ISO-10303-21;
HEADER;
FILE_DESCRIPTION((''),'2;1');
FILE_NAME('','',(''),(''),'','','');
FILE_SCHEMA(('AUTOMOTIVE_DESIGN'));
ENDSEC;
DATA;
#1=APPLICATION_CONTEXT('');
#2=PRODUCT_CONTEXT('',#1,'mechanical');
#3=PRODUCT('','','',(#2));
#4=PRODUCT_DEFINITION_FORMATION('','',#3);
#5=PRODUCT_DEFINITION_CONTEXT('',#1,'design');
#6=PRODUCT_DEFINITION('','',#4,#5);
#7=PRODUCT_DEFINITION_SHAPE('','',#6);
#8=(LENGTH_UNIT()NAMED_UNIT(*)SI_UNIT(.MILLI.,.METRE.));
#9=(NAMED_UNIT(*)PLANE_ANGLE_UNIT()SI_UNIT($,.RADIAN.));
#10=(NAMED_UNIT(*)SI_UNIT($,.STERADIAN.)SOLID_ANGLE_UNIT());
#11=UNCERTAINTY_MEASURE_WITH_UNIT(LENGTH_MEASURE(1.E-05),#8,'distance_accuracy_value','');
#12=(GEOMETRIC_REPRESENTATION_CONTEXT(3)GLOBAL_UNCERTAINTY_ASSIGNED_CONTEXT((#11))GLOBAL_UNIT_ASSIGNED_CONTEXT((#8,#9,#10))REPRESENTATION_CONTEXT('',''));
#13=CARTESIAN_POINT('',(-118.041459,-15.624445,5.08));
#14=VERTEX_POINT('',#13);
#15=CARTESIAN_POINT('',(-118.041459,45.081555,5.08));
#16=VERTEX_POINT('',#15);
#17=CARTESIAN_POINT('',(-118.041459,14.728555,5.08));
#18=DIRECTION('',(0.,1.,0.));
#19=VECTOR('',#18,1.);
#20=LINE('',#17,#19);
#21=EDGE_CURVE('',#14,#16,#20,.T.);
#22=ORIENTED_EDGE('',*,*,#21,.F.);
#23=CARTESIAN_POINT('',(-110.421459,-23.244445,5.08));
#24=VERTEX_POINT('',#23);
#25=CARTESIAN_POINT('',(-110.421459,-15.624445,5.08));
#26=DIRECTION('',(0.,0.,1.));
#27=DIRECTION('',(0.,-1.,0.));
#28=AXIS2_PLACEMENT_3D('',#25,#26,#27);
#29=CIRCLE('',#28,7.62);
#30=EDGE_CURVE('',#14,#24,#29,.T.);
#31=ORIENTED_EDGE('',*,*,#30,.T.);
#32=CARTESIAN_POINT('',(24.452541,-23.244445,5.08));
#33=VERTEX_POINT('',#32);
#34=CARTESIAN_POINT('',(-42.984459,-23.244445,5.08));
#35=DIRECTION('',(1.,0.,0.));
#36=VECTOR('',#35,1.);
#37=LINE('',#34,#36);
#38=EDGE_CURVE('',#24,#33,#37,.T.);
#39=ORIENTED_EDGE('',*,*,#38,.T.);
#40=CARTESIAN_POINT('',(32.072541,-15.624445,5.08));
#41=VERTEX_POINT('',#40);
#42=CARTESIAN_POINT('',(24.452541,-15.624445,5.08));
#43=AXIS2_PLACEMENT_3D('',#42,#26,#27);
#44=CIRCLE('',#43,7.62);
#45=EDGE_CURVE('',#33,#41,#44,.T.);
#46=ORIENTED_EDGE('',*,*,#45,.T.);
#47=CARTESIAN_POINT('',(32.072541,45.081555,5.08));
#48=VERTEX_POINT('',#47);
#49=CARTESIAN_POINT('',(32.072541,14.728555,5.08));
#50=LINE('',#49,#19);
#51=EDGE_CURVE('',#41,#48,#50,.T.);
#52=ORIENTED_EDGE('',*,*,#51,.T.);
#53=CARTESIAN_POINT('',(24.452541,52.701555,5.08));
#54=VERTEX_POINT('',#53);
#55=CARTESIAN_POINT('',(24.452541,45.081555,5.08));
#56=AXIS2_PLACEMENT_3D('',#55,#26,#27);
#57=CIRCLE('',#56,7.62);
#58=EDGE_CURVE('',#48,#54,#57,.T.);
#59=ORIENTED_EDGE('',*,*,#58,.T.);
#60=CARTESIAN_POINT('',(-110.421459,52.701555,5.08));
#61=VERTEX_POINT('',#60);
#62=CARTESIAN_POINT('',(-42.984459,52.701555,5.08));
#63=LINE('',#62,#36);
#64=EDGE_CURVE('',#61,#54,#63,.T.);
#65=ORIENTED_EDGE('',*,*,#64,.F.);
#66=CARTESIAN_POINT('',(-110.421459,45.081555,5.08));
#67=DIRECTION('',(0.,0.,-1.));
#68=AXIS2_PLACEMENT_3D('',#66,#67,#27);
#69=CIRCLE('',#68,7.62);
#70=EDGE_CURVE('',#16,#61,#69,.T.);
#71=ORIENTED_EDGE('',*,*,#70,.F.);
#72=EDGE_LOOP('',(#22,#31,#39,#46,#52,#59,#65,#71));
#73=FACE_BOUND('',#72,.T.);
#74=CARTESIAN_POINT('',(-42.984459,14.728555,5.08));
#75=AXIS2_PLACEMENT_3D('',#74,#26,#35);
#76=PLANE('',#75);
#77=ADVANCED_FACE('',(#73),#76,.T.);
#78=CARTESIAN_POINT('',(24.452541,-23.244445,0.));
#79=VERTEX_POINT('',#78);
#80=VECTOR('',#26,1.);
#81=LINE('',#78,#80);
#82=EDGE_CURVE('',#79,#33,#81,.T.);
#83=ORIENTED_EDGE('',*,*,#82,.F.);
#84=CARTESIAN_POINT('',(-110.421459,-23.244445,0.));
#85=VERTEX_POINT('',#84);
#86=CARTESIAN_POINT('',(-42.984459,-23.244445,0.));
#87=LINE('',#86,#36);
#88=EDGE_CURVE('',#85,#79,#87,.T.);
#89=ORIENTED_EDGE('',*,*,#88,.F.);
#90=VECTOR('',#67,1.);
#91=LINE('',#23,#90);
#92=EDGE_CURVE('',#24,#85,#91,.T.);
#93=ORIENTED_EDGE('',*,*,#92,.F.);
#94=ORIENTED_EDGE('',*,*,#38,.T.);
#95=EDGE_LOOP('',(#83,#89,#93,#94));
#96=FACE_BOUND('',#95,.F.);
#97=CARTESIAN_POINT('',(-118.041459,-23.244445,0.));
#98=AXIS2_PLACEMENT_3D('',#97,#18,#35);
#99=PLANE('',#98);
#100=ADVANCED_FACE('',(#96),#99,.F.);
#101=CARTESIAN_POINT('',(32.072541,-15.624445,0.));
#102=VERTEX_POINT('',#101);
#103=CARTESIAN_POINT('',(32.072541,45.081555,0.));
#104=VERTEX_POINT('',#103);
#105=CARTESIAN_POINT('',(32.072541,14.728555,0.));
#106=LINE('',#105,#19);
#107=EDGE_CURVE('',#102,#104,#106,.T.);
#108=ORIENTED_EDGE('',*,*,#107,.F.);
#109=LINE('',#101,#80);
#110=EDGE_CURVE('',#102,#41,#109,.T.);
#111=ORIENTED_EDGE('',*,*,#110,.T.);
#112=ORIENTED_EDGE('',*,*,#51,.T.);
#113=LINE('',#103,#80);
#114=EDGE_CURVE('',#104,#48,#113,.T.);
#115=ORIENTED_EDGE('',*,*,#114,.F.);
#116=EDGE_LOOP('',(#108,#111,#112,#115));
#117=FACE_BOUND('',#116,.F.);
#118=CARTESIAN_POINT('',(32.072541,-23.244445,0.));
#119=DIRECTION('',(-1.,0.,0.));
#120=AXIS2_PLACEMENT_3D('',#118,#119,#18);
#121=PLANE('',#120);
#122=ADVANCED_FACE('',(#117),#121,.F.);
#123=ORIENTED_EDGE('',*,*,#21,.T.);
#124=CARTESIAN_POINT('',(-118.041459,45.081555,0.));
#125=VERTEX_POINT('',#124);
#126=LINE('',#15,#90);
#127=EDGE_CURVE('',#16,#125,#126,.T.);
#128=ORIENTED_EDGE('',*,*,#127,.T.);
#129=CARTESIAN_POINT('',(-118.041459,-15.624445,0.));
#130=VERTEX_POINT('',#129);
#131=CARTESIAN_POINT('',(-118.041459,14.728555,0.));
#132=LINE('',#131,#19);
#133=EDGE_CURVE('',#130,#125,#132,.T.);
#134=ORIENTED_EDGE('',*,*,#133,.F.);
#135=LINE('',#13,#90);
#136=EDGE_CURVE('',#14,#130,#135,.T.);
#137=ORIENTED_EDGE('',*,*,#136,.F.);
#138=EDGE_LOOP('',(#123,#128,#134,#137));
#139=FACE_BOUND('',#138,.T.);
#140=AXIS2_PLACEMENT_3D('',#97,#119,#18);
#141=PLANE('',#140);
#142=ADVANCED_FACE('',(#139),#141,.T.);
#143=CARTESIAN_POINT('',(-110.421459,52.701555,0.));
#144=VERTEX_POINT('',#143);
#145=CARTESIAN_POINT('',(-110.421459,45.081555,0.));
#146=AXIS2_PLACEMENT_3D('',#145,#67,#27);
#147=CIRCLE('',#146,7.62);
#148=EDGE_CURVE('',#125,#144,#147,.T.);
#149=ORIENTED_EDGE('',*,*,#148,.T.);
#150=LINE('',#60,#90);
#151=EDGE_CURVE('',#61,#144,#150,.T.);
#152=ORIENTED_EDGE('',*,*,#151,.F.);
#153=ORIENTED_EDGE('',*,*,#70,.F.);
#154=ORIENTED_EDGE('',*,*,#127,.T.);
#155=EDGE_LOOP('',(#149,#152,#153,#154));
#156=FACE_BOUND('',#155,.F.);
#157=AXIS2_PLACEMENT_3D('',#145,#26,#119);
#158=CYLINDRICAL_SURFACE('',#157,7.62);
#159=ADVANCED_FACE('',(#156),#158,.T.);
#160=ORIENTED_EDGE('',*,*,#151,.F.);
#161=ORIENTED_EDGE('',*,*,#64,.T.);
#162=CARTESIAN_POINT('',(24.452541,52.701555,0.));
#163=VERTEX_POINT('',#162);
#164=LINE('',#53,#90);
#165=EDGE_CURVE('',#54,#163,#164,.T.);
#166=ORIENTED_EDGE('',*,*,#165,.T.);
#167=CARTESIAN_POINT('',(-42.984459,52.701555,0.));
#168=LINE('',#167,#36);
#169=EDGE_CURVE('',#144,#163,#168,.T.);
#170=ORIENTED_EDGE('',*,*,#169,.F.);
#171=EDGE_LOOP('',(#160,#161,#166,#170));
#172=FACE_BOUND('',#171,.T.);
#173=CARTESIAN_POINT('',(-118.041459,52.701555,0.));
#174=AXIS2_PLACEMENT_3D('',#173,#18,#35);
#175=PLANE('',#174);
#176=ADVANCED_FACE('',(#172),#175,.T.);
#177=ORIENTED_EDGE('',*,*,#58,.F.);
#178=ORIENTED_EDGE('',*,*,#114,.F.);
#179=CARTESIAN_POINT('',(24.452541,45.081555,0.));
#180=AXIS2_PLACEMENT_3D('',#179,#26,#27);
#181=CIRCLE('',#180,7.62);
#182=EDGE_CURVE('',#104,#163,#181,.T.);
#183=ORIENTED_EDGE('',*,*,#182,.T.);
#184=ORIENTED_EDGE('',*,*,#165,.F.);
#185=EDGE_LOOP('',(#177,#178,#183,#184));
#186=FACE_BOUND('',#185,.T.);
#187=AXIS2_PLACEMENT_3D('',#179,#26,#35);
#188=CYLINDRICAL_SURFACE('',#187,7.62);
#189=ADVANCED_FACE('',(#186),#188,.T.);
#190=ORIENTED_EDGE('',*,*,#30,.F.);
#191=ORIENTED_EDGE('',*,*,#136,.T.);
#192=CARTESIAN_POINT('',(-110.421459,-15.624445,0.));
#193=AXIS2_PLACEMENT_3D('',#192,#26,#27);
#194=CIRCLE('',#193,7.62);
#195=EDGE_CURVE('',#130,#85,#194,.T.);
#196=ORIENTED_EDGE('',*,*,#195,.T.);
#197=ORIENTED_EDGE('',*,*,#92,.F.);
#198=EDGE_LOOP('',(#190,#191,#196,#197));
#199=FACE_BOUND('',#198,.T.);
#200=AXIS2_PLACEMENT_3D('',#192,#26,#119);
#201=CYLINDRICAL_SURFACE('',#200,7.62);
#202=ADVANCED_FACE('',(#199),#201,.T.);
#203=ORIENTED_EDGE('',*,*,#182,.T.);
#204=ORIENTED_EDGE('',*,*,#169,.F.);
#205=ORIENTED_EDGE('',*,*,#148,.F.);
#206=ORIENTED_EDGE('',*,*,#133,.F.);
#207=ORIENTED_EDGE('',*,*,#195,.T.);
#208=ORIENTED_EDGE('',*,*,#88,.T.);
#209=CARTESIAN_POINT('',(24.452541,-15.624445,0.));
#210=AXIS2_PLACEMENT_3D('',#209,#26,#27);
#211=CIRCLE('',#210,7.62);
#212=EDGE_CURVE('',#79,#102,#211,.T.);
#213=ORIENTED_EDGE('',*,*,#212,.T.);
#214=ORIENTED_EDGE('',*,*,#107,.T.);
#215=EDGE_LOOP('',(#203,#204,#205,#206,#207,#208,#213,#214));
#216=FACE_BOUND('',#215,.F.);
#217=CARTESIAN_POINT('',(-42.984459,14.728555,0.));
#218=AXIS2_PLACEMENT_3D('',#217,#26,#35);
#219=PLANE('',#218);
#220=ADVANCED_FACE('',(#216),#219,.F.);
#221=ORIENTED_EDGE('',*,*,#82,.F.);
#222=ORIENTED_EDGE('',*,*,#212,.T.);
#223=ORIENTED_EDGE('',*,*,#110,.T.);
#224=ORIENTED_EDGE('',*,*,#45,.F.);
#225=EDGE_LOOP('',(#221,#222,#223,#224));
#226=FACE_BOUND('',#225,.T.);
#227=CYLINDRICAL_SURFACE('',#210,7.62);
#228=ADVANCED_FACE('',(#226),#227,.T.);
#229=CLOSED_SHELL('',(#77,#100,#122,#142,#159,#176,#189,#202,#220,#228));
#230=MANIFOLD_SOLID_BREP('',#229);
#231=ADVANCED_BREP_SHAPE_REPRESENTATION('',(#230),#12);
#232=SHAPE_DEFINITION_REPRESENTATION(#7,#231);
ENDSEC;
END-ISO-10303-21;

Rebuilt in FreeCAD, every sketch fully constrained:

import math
import FreeCAD as App
import Part
import Sketcher
Q = App.Units.Quantity


def edges_at(feature, points):
    """Names of the edges that pass closest to the given points."""
    edges = feature.Shape.Edges
    near = lambda p: min(range(len(edges)), key=lambda i: edges[i].distToShape(Part.Vertex(*p))[0])
    return sorted({f"Edge{near(p) + 1}" for p in points})

doc = App.newDocument("Part")
body = doc.addObject("PartDesign::Body", "Body")

# Sketch on XY plane
sketch1 = body.newObject("Sketcher::SketchObject", "Sketch")
sketch1.AttachmentSupport = (doc.getObject("XY_Plane"), [""])
sketch1.MapMode = "FlatFace"
sketch1.addGeometry(Part.LineSegment(App.Vector(-118, 53, 0), App.Vector(-118, -23, 0)), False)
sketch1.addGeometry(Part.LineSegment(App.Vector(-118, -23, 0), App.Vector(32, -23, 0)), False)
sketch1.addGeometry(Part.LineSegment(App.Vector(32, -23, 0), App.Vector(32, 53, 0)), False)
sketch1.addGeometry(Part.LineSegment(App.Vector(32, 53, 0), App.Vector(-118, 53, 0)), False)
sketch1.addConstraint(Sketcher.Constraint("Coincident", 0, 2, 1, 1))
sketch1.addConstraint(Sketcher.Constraint("Coincident", 1, 2, 2, 1))
sketch1.addConstraint(Sketcher.Constraint("Coincident", 2, 2, 3, 1))
sketch1.addConstraint(Sketcher.Constraint("Coincident", 3, 2, 0, 1))
sketch1.addConstraint(Sketcher.Constraint("Vertical", 0))
sketch1.addConstraint(Sketcher.Constraint("Horizontal", 1))
sketch1.addConstraint(Sketcher.Constraint("Vertical", 2))
sketch1.addConstraint(Sketcher.Constraint("Horizontal", 3))
sketch1.addConstraint(Sketcher.Constraint("DistanceX", 1, 1, 1, 2, Q("5.91 in")))
sketch1.addConstraint(Sketcher.Constraint("DistanceY", 0, 2, 0, 1, Q("2.99 in")))
sketch1.addConstraint(Sketcher.Constraint("DistanceX", 0, 2, -1, 1, 118.041459))
sketch1.addConstraint(Sketcher.Constraint("DistanceY", 0, 2, -1, 1, 23.244445))
pad1 = body.newObject("PartDesign::Pad", "Pad")
pad1.Profile = sketch1
pad1.Length = Q("0.2 in")
doc.recompute()

fillet = body.newObject("PartDesign::Fillet", "Fillet")
fillet.Base = (pad1, edges_at(pad1, [
    (-118.041, -23.244, 2.54),
    (32.073, -23.244, 2.54),
    (32.073, 52.702, 2.54),
    (-118.041, 52.702, 2.54),
]))
fillet.Radius = Q("0.3 in")

# Sketch on XY plane
sketch2 = body.newObject("Sketcher::SketchObject", "Sketch001")
sketch2.AttachmentSupport = (doc.getObject("XY_Plane"), [""])
sketch2.MapMode = "FlatFace"
sketch2.AttachmentOffset = App.Placement(App.Vector(0, 0, 0.2 * 25.4), App.Rotation())
sketch2.addGeometry(Part.LineSegment(App.Vector(-110, -23, 0), App.Vector(24, -23, 0)), False)
sketch2.addGeometry(Part.ArcOfCircle(Part.Circle(App.Vector(24, -16, 0), App.Vector(0, 0, 1), 8), math.radians(-90), math.radians(0)), False)
sketch2.addGeometry(Part.LineSegment(App.Vector(32, -16, 0), App.Vector(32, 45, 0)), False)
sketch2.addGeometry(Part.ArcOfCircle(Part.Circle(App.Vector(24, 45, 0), App.Vector(0, 0, 1), 8), math.radians(0), math.radians(90)), False)
sketch2.addGeometry(Part.LineSegment(App.Vector(24, 53, 0), App.Vector(-110, 53, 0)), False)
sketch2.addGeometry(Part.ArcOfCircle(Part.Circle(App.Vector(-110, 45, 0), App.Vector(0, 0, 1), 8), math.radians(90), math.radians(180)), False)
sketch2.addGeometry(Part.LineSegment(App.Vector(-118, 45, 0), App.Vector(-118, -16, 0)), False)
sketch2.addGeometry(Part.ArcOfCircle(Part.Circle(App.Vector(-110, -16, 0), App.Vector(0, 0, 1), 8), math.radians(180), math.radians(270)), False)
sketch2.addConstraint(Sketcher.Constraint("Tangent", 0, 2, 1, 1))
sketch2.addConstraint(Sketcher.Constraint("Tangent", 1, 2, 2, 1))
sketch2.addConstraint(Sketcher.Constraint("Tangent", 2, 2, 3, 1))
sketch2.addConstraint(Sketcher.Constraint("Tangent", 3, 2, 4, 1))
sketch2.addConstraint(Sketcher.Constraint("Tangent", 4, 2, 5, 1))
sketch2.addConstraint(Sketcher.Constraint("Tangent", 5, 2, 6, 1))
sketch2.addConstraint(Sketcher.Constraint("Tangent", 6, 2, 7, 1))
sketch2.addConstraint(Sketcher.Constraint("Tangent", 7, 2, 0, 1))
sketch2.addConstraint(Sketcher.Constraint("Horizontal", 0))
sketch2.addConstraint(Sketcher.Constraint("Vertical", 2))
sketch2.addConstraint(Sketcher.Constraint("Horizontal", 4))
sketch2.addConstraint(Sketcher.Constraint("Vertical", 6))
sketch2.addConstraint(Sketcher.Constraint("Equal", 1, 3))
sketch2.addConstraint(Sketcher.Constraint("Equal", 3, 5))
sketch2.addConstraint(Sketcher.Constraint("Equal", 5, 7))
sketch2.addConstraint(Sketcher.Constraint("Radius", 1, Q("0.3 in")))
sketch2.addConstraint(Sketcher.Constraint("DistanceX", 0, 1, 0, 2, Q("5.31 in")))
sketch2.addConstraint(Sketcher.Constraint("DistanceY", 2, 1, 2, 2, Q("2.39 in")))
sketch2.addConstraint(Sketcher.Constraint("DistanceX", 5, 3, -1, 1, 110.42146))
sketch2.addConstraint(Sketcher.Constraint("DistanceY", 1, 3, -1, 1, 15.624446))
pad2 = body.newObject("PartDesign::Pad", "Pad001")
pad2.Profile = sketch2
pad2.Length = Q("0.1 in")
pad2.Reversed = True

# Sketch on XY plane
sketch3 = body.newObject("Sketcher::SketchObject", "Sketch002")
sketch3.AttachmentSupport = (doc.getObject("XY_Plane"), [""])
sketch3.MapMode = "FlatFace"
sketch3.AttachmentOffset = App.Placement(App.Vector(0, 0, 0.2 * 25.4), App.Rotation())
sketch3.addGeometry(Part.LineSegment(App.Vector(-110, -23, 0), App.Vector(24, -23, 0)), False)
sketch3.addGeometry(Part.ArcOfCircle(Part.Circle(App.Vector(24, -16, 0), App.Vector(0, 0, 1), 8), math.radians(-90), math.radians(0)), False)
sketch3.addGeometry(Part.LineSegment(App.Vector(32, -16, 0), App.Vector(32, 45, 0)), False)
sketch3.addGeometry(Part.ArcOfCircle(Part.Circle(App.Vector(24, 45, 0), App.Vector(0, 0, 1), 8), math.radians(0), math.radians(90)), False)
sketch3.addGeometry(Part.LineSegment(App.Vector(24, 53, 0), App.Vector(-110, 53, 0)), False)
sketch3.addGeometry(Part.ArcOfCircle(Part.Circle(App.Vector(-110, 45, 0), App.Vector(0, 0, 1), 8), math.radians(90), math.radians(180)), False)
sketch3.addGeometry(Part.LineSegment(App.Vector(-118, 45, 0), App.Vector(-118, -16, 0)), False)
sketch3.addGeometry(Part.ArcOfCircle(Part.Circle(App.Vector(-110, -16, 0), App.Vector(0, 0, 1), 8), math.radians(180), math.radians(270)), False)
sketch3.addConstraint(Sketcher.Constraint("Tangent", 0, 2, 1, 1))
sketch3.addConstraint(Sketcher.Constraint("Tangent", 1, 2, 2, 1))
sketch3.addConstraint(Sketcher.Constraint("Tangent", 2, 2, 3, 1))
sketch3.addConstraint(Sketcher.Constraint("Tangent", 3, 2, 4, 1))
sketch3.addConstraint(Sketcher.Constraint("Tangent", 4, 2, 5, 1))
sketch3.addConstraint(Sketcher.Constraint("Tangent", 5, 2, 6, 1))
sketch3.addConstraint(Sketcher.Constraint("Tangent", 6, 2, 7, 1))
sketch3.addConstraint(Sketcher.Constraint("Tangent", 7, 2, 0, 1))
sketch3.addConstraint(Sketcher.Constraint("Horizontal", 0))
sketch3.addConstraint(Sketcher.Constraint("Vertical", 2))
sketch3.addConstraint(Sketcher.Constraint("Horizontal", 4))
sketch3.addConstraint(Sketcher.Constraint("Vertical", 6))
sketch3.addConstraint(Sketcher.Constraint("Equal", 1, 3))
sketch3.addConstraint(Sketcher.Constraint("Equal", 3, 5))
sketch3.addConstraint(Sketcher.Constraint("Equal", 5, 7))
sketch3.addConstraint(Sketcher.Constraint("Radius", 1, Q("0.3 in")))
sketch3.addConstraint(Sketcher.Constraint("DistanceX", 0, 1, 0, 2, Q("5.31 in")))
sketch3.addConstraint(Sketcher.Constraint("DistanceY", 2, 1, 2, 2, Q("2.39 in")))
sketch3.addConstraint(Sketcher.Constraint("DistanceX", 5, 3, -1, 1, 110.42146))
sketch3.addConstraint(Sketcher.Constraint("DistanceY", 1, 3, -1, 1, 15.624446))
pad3 = body.newObject("PartDesign::Pad", "Pad002")
pad3.Profile = sketch3
pad3.Length = Q("0.1 in")
pad3.Reversed = True

# Sketch on XY plane
sketch4 = body.newObject("Sketcher::SketchObject", "Sketch003")
sketch4.AttachmentSupport = (doc.getObject("XY_Plane"), [""])
sketch4.MapMode = "FlatFace"
sketch4.AttachmentOffset = App.Placement(App.Vector(0, 0, 0.2 * 25.4), App.Rotation())
sketch4.addGeometry(Part.LineSegment(App.Vector(-110, -23, 0), App.Vector(24, -23, 0)), False)
sketch4.addGeometry(Part.ArcOfCircle(Part.Circle(App.Vector(24, -16, 0), App.Vector(0, 0, 1), 8), math.radians(-90), math.radians(0)), False)
sketch4.addGeometry(Part.LineSegment(App.Vector(32, -16, 0), App.Vector(32, 45, 0)), False)
sketch4.addGeometry(Part.ArcOfCircle(Part.Circle(App.Vector(24, 45, 0), App.Vector(0, 0, 1), 8), math.radians(0), math.radians(90)), False)
sketch4.addGeometry(Part.LineSegment(App.Vector(24, 53, 0), App.Vector(-110, 53, 0)), False)
sketch4.addGeometry(Part.ArcOfCircle(Part.Circle(App.Vector(-110, 45, 0), App.Vector(0, 0, 1), 8), math.radians(90), math.radians(180)), False)
sketch4.addGeometry(Part.LineSegment(App.Vector(-118, 45, 0), App.Vector(-118, -16, 0)), False)
sketch4.addGeometry(Part.ArcOfCircle(Part.Circle(App.Vector(-110, -16, 0), App.Vector(0, 0, 1), 8), math.radians(180), math.radians(270)), False)
sketch4.addConstraint(Sketcher.Constraint("Tangent", 0, 2, 1, 1))
sketch4.addConstraint(Sketcher.Constraint("Tangent", 1, 2, 2, 1))
sketch4.addConstraint(Sketcher.Constraint("Tangent", 2, 2, 3, 1))
sketch4.addConstraint(Sketcher.Constraint("Tangent", 3, 2, 4, 1))
sketch4.addConstraint(Sketcher.Constraint("Tangent", 4, 2, 5, 1))
sketch4.addConstraint(Sketcher.Constraint("Tangent", 5, 2, 6, 1))
sketch4.addConstraint(Sketcher.Constraint("Tangent", 6, 2, 7, 1))
sketch4.addConstraint(Sketcher.Constraint("Tangent", 7, 2, 0, 1))
sketch4.addConstraint(Sketcher.Constraint("Horizontal", 0))
sketch4.addConstraint(Sketcher.Constraint("Vertical", 2))
sketch4.addConstraint(Sketcher.Constraint("Horizontal", 4))
sketch4.addConstraint(Sketcher.Constraint("Vertical", 6))
sketch4.addConstraint(Sketcher.Constraint("Equal", 1, 3))
sketch4.addConstraint(Sketcher.Constraint("Equal", 3, 5))
sketch4.addConstraint(Sketcher.Constraint("Equal", 5, 7))
sketch4.addConstraint(Sketcher.Constraint("Radius", 1, Q("0.3 in")))
sketch4.addConstraint(Sketcher.Constraint("DistanceX", 0, 1, 0, 2, Q("5.31 in")))
sketch4.addConstraint(Sketcher.Constraint("DistanceY", 2, 1, 2, 2, Q("2.39 in")))
sketch4.addConstraint(Sketcher.Constraint("DistanceX", 5, 3, -1, 1, 110.42146))
sketch4.addConstraint(Sketcher.Constraint("DistanceY", 1, 3, -1, 1, 15.624446))
pad4 = body.newObject("PartDesign::Pad", "Pad003")
pad4.Profile = sketch4
pad4.Length = Q("0.2 in")
pad4.Reversed = True

doc.recompute()
